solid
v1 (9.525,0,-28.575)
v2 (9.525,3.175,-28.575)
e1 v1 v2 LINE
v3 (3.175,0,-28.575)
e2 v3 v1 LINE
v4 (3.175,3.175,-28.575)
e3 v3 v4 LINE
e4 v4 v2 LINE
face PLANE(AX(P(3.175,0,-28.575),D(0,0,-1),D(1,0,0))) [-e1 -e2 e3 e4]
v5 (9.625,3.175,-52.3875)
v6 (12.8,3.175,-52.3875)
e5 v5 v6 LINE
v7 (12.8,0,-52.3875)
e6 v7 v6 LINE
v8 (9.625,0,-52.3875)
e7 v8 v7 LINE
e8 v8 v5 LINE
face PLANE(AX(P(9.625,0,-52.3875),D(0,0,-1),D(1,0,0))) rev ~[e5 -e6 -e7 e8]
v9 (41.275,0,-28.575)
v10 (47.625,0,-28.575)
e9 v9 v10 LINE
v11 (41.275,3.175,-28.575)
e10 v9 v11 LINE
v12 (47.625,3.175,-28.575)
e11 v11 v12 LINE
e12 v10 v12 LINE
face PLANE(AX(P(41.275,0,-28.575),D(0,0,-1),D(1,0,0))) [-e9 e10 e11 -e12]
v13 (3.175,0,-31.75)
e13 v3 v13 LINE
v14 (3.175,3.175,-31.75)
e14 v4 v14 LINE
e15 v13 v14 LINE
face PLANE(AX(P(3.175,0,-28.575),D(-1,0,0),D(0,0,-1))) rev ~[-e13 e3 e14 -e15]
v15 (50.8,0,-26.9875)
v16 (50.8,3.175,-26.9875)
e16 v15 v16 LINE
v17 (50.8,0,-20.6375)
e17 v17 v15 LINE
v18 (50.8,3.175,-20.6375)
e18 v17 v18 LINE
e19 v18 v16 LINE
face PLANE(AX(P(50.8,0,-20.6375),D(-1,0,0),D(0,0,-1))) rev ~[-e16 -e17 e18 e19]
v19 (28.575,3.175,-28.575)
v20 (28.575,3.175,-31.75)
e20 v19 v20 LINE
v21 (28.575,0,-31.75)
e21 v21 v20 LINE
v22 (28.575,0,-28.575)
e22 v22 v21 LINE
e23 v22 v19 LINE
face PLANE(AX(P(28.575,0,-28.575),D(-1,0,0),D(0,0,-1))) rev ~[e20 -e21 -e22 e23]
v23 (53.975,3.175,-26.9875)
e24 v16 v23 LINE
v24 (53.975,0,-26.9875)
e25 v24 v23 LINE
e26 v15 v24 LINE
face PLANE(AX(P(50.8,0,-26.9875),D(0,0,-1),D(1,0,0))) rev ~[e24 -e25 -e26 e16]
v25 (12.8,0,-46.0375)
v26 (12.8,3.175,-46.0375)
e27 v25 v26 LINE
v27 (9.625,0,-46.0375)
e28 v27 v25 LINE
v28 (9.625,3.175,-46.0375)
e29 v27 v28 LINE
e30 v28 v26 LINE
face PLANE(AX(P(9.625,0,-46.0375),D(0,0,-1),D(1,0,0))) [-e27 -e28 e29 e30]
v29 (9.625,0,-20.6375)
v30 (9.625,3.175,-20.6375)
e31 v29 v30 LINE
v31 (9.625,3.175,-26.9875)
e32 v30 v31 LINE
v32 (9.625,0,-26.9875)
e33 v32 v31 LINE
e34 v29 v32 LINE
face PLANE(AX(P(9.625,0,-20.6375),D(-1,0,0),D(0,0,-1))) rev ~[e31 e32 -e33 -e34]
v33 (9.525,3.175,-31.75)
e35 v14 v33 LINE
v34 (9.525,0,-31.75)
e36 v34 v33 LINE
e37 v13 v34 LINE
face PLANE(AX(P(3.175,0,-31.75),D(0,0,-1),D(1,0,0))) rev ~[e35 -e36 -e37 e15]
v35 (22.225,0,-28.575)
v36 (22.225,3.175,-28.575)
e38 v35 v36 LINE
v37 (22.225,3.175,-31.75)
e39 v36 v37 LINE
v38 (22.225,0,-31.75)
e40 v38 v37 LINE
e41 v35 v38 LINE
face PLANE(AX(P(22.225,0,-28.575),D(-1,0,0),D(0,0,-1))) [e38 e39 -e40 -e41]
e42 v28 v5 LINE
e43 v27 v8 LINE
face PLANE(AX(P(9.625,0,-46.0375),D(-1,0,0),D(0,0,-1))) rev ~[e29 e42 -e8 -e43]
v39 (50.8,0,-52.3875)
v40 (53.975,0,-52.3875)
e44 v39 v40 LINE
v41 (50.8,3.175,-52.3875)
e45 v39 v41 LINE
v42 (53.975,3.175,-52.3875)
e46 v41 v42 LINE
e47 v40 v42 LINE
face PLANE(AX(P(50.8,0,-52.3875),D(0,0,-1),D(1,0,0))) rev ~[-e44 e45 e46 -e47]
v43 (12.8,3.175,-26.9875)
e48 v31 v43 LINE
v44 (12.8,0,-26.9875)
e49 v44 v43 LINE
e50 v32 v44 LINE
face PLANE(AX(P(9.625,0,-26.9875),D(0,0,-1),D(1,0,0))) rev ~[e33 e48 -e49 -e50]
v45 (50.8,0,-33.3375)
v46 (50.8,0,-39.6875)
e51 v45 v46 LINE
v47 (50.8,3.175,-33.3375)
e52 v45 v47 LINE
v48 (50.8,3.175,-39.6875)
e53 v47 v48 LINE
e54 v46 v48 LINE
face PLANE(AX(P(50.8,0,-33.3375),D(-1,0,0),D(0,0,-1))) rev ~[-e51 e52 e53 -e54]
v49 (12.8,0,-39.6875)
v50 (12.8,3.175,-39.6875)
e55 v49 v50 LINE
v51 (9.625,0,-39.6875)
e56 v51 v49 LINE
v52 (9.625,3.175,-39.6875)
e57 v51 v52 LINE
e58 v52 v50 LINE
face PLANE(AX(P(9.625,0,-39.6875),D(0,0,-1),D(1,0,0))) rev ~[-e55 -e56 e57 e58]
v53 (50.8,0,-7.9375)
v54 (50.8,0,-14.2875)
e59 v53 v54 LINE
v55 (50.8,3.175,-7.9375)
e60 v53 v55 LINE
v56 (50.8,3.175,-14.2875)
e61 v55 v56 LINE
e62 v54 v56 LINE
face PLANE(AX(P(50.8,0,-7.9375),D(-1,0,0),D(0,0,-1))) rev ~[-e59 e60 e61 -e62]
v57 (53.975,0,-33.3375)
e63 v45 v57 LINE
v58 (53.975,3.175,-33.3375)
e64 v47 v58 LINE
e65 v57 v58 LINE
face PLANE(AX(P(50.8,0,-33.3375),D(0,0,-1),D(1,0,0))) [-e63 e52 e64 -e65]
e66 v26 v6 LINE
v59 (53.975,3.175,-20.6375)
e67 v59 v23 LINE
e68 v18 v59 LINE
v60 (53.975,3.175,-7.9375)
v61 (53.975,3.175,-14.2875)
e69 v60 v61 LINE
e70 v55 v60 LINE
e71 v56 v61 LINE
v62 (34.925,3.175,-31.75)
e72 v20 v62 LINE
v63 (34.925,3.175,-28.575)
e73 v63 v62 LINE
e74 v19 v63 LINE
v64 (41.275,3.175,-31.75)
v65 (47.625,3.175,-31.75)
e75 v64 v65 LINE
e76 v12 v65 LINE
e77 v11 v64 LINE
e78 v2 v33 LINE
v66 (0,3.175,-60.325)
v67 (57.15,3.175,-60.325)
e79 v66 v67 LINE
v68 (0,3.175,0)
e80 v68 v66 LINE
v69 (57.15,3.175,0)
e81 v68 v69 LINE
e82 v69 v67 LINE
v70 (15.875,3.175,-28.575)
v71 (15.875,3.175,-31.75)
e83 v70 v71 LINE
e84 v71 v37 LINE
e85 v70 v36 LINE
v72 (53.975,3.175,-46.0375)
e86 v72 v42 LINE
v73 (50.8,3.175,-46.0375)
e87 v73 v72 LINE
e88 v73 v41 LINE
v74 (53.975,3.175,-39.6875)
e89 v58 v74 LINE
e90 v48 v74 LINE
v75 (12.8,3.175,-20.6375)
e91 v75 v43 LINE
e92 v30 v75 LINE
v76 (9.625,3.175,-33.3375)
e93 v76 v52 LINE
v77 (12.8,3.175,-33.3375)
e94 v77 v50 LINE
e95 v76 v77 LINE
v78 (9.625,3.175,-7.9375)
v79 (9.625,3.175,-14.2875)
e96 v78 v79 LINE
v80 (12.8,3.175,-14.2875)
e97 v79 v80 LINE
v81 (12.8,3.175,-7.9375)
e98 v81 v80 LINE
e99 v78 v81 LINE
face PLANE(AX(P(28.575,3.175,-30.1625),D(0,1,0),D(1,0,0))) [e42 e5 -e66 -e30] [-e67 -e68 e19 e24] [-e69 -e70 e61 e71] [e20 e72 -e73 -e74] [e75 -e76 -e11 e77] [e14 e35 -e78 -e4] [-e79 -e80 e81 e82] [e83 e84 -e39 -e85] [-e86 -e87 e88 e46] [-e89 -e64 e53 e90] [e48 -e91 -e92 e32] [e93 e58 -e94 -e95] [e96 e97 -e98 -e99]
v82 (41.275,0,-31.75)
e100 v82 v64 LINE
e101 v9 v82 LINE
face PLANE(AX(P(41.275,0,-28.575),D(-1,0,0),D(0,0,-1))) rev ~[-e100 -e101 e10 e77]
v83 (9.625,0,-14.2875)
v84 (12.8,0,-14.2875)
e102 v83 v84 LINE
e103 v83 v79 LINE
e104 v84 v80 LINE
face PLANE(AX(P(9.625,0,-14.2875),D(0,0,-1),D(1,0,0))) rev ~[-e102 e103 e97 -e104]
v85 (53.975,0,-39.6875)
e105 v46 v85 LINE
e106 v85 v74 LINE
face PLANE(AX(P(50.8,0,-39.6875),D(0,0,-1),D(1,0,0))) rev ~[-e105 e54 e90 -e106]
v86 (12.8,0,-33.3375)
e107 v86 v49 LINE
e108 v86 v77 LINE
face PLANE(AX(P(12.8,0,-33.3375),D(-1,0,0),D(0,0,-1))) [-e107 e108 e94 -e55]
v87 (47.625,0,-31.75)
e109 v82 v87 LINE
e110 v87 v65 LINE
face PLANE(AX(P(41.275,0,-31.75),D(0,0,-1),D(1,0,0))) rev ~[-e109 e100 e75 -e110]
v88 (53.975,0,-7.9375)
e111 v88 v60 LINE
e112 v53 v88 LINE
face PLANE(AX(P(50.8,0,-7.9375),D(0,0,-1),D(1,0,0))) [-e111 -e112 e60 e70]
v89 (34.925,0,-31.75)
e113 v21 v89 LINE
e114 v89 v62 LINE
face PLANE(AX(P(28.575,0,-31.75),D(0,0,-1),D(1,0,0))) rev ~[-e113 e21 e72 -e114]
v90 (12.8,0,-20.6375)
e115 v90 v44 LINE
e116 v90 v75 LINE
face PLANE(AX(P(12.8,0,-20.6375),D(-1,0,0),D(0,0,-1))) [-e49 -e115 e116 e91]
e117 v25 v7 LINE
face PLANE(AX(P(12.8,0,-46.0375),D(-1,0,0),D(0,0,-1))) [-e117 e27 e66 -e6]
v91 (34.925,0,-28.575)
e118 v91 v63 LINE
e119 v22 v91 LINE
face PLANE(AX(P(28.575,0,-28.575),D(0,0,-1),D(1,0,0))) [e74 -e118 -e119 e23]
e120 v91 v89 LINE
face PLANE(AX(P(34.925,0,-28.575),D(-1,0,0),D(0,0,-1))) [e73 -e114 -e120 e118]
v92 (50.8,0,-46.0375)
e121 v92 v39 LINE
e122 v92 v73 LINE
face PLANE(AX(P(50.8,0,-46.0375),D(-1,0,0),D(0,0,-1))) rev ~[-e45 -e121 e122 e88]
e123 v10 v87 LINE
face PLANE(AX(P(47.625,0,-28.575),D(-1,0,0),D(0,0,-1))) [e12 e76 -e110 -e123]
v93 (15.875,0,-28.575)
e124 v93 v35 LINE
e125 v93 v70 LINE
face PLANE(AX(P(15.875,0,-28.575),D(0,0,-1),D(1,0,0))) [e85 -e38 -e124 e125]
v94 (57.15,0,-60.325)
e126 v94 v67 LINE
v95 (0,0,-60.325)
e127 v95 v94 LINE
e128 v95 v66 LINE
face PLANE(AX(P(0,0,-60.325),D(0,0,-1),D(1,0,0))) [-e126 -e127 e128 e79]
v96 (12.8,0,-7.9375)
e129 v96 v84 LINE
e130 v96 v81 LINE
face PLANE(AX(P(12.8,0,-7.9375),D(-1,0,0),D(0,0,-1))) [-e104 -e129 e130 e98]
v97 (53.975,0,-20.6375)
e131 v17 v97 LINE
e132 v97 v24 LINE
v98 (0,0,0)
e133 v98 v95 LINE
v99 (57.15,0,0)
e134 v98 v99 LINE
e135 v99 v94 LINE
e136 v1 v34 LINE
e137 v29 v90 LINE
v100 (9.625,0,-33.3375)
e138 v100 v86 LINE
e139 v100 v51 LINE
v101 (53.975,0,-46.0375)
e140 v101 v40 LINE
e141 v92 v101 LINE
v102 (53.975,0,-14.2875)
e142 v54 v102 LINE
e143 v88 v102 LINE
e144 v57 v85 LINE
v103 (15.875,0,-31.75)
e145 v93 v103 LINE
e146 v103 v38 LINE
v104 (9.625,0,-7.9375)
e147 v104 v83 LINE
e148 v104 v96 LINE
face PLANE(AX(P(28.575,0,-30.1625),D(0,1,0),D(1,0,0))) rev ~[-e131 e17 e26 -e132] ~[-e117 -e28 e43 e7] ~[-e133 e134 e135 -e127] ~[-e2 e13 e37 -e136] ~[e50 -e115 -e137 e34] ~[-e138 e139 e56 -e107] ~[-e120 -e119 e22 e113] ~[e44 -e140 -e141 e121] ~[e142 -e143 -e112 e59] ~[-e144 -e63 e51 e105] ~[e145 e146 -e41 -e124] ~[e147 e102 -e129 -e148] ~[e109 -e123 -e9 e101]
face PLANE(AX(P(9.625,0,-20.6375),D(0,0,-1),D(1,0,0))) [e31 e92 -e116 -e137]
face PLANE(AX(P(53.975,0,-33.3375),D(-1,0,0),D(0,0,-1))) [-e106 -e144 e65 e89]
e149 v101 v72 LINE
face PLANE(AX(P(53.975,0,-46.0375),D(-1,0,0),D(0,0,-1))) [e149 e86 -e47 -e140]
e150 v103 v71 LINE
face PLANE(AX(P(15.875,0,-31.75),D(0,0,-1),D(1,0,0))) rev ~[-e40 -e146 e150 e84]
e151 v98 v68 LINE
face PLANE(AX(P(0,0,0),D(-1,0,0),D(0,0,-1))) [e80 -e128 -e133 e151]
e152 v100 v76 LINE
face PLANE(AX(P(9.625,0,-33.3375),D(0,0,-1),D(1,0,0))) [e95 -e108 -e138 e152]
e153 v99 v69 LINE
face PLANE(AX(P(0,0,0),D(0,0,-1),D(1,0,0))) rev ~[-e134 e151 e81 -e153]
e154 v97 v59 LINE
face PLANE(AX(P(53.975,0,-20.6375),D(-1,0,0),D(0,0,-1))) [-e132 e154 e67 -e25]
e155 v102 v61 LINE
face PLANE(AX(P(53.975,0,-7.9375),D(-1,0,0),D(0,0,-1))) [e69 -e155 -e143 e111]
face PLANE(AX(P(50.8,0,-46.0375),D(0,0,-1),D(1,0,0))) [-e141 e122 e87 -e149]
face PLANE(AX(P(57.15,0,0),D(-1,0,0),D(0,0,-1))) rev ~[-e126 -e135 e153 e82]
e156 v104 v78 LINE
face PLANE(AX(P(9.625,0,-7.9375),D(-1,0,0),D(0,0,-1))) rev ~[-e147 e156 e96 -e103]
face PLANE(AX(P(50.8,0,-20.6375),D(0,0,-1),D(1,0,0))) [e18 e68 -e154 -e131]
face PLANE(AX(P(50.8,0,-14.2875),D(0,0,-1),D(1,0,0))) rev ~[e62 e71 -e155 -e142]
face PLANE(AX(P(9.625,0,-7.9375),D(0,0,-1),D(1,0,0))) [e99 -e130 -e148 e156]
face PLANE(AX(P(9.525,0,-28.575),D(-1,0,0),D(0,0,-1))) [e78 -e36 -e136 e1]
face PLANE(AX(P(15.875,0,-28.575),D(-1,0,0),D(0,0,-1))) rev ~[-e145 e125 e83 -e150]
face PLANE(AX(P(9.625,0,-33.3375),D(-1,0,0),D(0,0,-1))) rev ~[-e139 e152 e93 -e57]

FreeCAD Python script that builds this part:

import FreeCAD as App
import Part
import Sketcher
Q = App.Units.Quantity


def add_polygon(sketch, points):
    """Adds a closed chain of lines whose ends are joined by coincident constraints."""
    first, n = sketch.GeometryCount, len(points)
    for a, b in zip(points, points[1:] + points[:1]):
        sketch.addGeometry(Part.LineSegment(App.Vector(*a, 0), App.Vector(*b, 0)), False)
    for i in range(n):
        sketch.addConstraint(Sketcher.Constraint("Coincident", first + i, 2, first + (i + 1) % n, 1))

doc = App.newDocument("Part")
body = doc.addObject("PartDesign::Body", "Body")

sketch1 = body.newObject("Sketcher::SketchObject", "Sketch")
sketch1.AttachmentSupport = (doc.getObject("XZ_Plane"), [""])
sketch1.MapMode = "FlatFace"
add_polygon(sketch1, [(0, -60.3), (0, 0), (57.1, 0), (57.1, -60.3)])
add_polygon(sketch1, [(12.8, -7.9), (9.6, -7.9), (9.6, -14.3), (12.8, -14.3)])
add_polygon(sketch1, [(12.8, -20.6), (9.6, -20.6), (9.6, -27), (12.8, -27)])
add_polygon(sketch1, [(54, -7.9), (50.8, -7.9), (50.8, -14.3), (54, -14.3)])
add_polygon(sketch1, [(54, -20.6), (50.8, -20.6), (50.8, -27), (54, -27)])
add_polygon(sketch1, [(9.5, -28.6), (3.2, -28.6), (3.2, -31.8), (9.5, -31.8)])
add_polygon(sketch1, [(12.8, -33.3), (9.6, -33.3), (9.6, -39.7), (12.8, -39.7)])
add_polygon(sketch1, [(22.2, -28.6), (15.9, -28.6), (15.9, -31.8), (22.2, -31.8)])
add_polygon(sketch1, [(12.8, -46), (9.6, -46), (9.6, -52.4), (12.8, -52.4)])
add_polygon(sketch1, [(34.9, -28.6), (28.6, -28.6), (28.6, -31.8), (34.9, -31.8)])
add_polygon(sketch1, [(47.6, -28.6), (41.3, -28.6), (41.3, -31.8), (47.6, -31.8)])
add_polygon(sketch1, [(54, -33.3), (50.8, -33.3), (50.8, -39.7), (54, -39.7)])
add_polygon(sketch1, [(54, -46), (50.8, -46), (50.8, -52.4), (54, -52.4)])
sketch1.addConstraint([
    Sketcher.Constraint("Vertical", 0),
    Sketcher.Constraint("Horizontal", 1),
    Sketcher.Constraint("Vertical", 2),
    Sketcher.Constraint("Horizontal", 3),
    Sketcher.Constraint("Horizontal", 4),
    Sketcher.Constraint("Vertical", 5),
    Sketcher.Constraint("Horizontal", 6),
    Sketcher.Constraint("Vertical", 7),
    Sketcher.Constraint("Horizontal", 8),
    Sketcher.Constraint("Vertical", 9),
    Sketcher.Constraint("Horizontal", 10),
    Sketcher.Constraint("Vertical", 11),
    Sketcher.Constraint("Horizontal", 12),
    Sketcher.Constraint("Vertical", 13),
    Sketcher.Constraint("Horizontal", 14),
    Sketcher.Constraint("Vertical", 15),
    Sketcher.Constraint("Horizontal", 16),
    Sketcher.Constraint("Vertical", 17),
    Sketcher.Constraint("Horizontal", 18),
    Sketcher.Constraint("Vertical", 19),
    Sketcher.Constraint("Horizontal", 20),
    Sketcher.Constraint("Vertical", 21),
    Sketcher.Constraint("Horizontal", 22),
    Sketcher.Constraint("Vertical", 23),
    Sketcher.Constraint("Horizontal", 24),
    Sketcher.Constraint("Vertical", 25),
    Sketcher.Constraint("Horizontal", 26),
    Sketcher.Constraint("Vertical", 27),
    Sketcher.Constraint("Horizontal", 28),
    Sketcher.Constraint("Vertical", 29),
    Sketcher.Constraint("Horizontal", 30),
    Sketcher.Constraint("Vertical", 31),
    Sketcher.Constraint("Horizontal", 32),
    Sketcher.Constraint("Vertical", 33),
    Sketcher.Constraint("Horizontal", 34),
    Sketcher.Constraint("Vertical", 35),
    Sketcher.Constraint("Horizontal", 36),
    Sketcher.Constraint("Vertical", 37),
    Sketcher.Constraint("Horizontal", 38),
    Sketcher.Constraint("Vertical", 39),
    Sketcher.Constraint("Horizontal", 40),
    Sketcher.Constraint("Vertical", 41),
    Sketcher.Constraint("Horizontal", 42),
    Sketcher.Constraint("Vertical", 43),
    Sketcher.Constraint("Horizontal", 44),
    Sketcher.Constraint("Vertical", 45),
    Sketcher.Constraint("Horizontal", 46),
    Sketcher.Constraint("Vertical", 47),
    Sketcher.Constraint("Horizontal", 48),
    Sketcher.Constraint("Vertical", 49),
    Sketcher.Constraint("Horizontal", 50),
    Sketcher.Constraint("Vertical", 51),
    Sketcher.Constraint("Coincident", 0, 2, -1, 1),
    Sketcher.Constraint("Horizontal", 7, 2, 12, 2),
    Sketcher.Constraint("Horizontal", 6, 2, 13, 2),
    Sketcher.Constraint("Horizontal", 11, 2, 16, 2),
    Sketcher.Constraint("Horizontal", 10, 2, 17, 2),
    Sketcher.Constraint("Horizontal", 23, 2, 28, 2),
    Sketcher.Constraint("Horizontal", 22, 2, 29, 2),
    Sketcher.Constraint("Horizontal", 31, 2, 36, 2),
    Sketcher.Constraint("Horizontal", 30, 2, 37, 2),
    Sketcher.Constraint("Horizontal", 39, 2, 40, 2),
    Sketcher.Constraint("Horizontal", 38, 2, 41, 2),
    Sketcher.Constraint("Horizontal", 27, 2, 44, 2),
    Sketcher.Constraint("Horizontal", 26, 2, 45, 2),
    Sketcher.Constraint("Horizontal", 35, 2, 48, 2),
    Sketcher.Constraint("Horizontal", 34, 2, 49, 2),
    Sketcher.Constraint("Vertical", 5, 2, 8, 2),
    Sketcher.Constraint("Vertical", 7, 2, 10, 2),
    Sketcher.Constraint("Vertical", 13, 2, 16, 2),
    Sketcher.Constraint("Vertical", 15, 2, 18, 2),
    Sketcher.Constraint("Vertical", 9, 2, 24, 2),
    Sketcher.Constraint("Vertical", 11, 2, 26, 2),
    Sketcher.Constraint("Vertical", 25, 2, 32, 2),
    Sketcher.Constraint("Vertical", 27, 2, 34, 2),
    Sketcher.Constraint("Vertical", 17, 2, 44, 2),
    Sketcher.Constraint("Vertical", 19, 2, 46, 2),
    Sketcher.Constraint("Vertical", 45, 2, 48, 2),
    Sketcher.Constraint("Vertical", 47, 2, 50, 2),
    Sketcher.Constraint("Equal", 10, 12),
    Sketcher.Constraint("Equal", 22, 28),
    Sketcher.Constraint("Equal", 30, 36),
    Sketcher.Constraint("Equal", 38, 40),
    Sketcher.Constraint("Equal", 42, 5),
    Sketcher.Constraint("Equal", 7, 9),
    Sketcher.Constraint("Equal", 50, 21),
    Sketcher.Constraint("Equal", 19, 25),
    Sketcher.Constraint("Equal", 27, 33),
    Sketcher.Constraint("DistanceX", -1, 1, 12, 2, Q("2 in")),
    Sketcher.Constraint("DistanceX", 1, 1, 1, 2, Q("2.25 in")),
    Sketcher.Constraint("DistanceX", 20, 2, 20, 1, Q("0.25 in")),
    Sketcher.Constraint("DistanceY", 8, 2, 4, 2, Q("0.5 in")),
    Sketcher.Constraint("DistanceY", 25, 2, 9, 2, Q("0.5 in")),
    Sketcher.Constraint("DistanceY", 32, 2, 24, 2, Q("0.5 in")),
    Sketcher.Constraint("DistanceX", 28, 2, 36, 2, Q("0.5 in")),
    Sketcher.Constraint("DistanceX", 36, 2, 40, 2, Q("0.5 in")),
    Sketcher.Constraint("DistanceX", 4, 2, 4, 1, Q("0.125 in")),
    Sketcher.Constraint("DistanceY", 0, 1, 0, 2, Q("2.375 in")),
    Sketcher.Constraint("DistanceY", 21, 2, -1, 1, Q("1.25 in")),
    Sketcher.Constraint("DistanceX", 23, 2, 28, 2, Q("0.25 in")),
    Sketcher.Constraint("DistanceX", 42, 2, 18, 2, Q("0.25 in")),
    Sketcher.Constraint("DistanceY", 4, 2, -1, 1, Q("0.3125 in")),
    Sketcher.Constraint("DistanceX", -1, 1, 4, 2, 9.625),
])
pad1 = body.newObject("PartDesign::Pad", "Pad")
pad1.Profile = sketch1
pad1.Length = Q("0.125 in")
pad1.Reversed = True

doc.recompute()
